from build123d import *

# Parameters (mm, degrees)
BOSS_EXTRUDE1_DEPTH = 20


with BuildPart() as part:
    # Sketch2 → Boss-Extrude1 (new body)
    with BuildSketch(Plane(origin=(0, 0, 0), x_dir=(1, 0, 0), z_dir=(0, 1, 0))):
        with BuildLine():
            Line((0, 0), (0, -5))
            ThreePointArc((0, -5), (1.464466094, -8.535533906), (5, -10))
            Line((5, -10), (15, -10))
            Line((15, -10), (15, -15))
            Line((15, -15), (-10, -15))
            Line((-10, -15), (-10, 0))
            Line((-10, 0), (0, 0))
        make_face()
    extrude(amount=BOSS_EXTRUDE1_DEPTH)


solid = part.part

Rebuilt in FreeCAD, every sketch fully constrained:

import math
import FreeCAD as App
import Part
import Sketcher

V = App.Vector

doc = App.newDocument("Part")
body = doc.addObject("PartDesign::Body", "Body")

# Sketch on XZ plane
sketch1 = body.newObject("Sketcher::SketchObject", "Sketch")
sketch1.AttachmentSupport = (doc.getObject("XZ_Plane"), [""])
sketch1.MapMode = "FlatFace"
sketch1.addGeometry([
    Part.LineSegment(V(0, 5, 0), V(0, 0, 0)),  # 0
    Part.LineSegment(V(0, 0, 0), V(-10, 0, 0)),  # 1
    Part.LineSegment(V(-10, 0, 0), V(-10, 15, 0)),  # 2
    Part.LineSegment(V(-10, 15, 0), V(15, 15, 0)),  # 3
    Part.LineSegment(V(15, 15, 0), V(15, 10, 0)),  # 4
    Part.LineSegment(V(15, 10, 0), V(5, 10, 0)),  # 5
    Part.ArcOfCircle(Part.Circle(V(5, 5, 0), V(0, 0, 1), 5), math.radians(90), math.radians(180)),  # 6
], False)
sketch1.addConstraint([
    Sketcher.Constraint("Coincident", 0, 2, 1, 1),
    Sketcher.Constraint("Coincident", 1, 2, 2, 1),
    Sketcher.Constraint("Coincident", 2, 2, 3, 1),
    Sketcher.Constraint("Coincident", 3, 2, 4, 1),
    Sketcher.Constraint("Coincident", 4, 2, 5, 1),
    Sketcher.Constraint("Tangent", 5, 2, 6, 1),
    Sketcher.Constraint("Tangent", 6, 2, 0, 1),
    Sketcher.Constraint("Vertical", 0),
    Sketcher.Constraint("Horizontal", 1),
    Sketcher.Constraint("Vertical", 2),
    Sketcher.Constraint("Horizontal", 3),
    Sketcher.Constraint("Vertical", 4),
    Sketcher.Constraint("Horizontal", 5),
    Sketcher.Constraint("Coincident", 0, 2, -1, 1),
    Sketcher.Constraint("Equal", 1, 5),
    Sketcher.Constraint("Equal", 0, 4),
    Sketcher.Constraint("Radius", 6, 5.0),
    Sketcher.Constraint("DistanceX", 1, 2, 1, 1, 10.0),
    Sketcher.Constraint("DistanceY", 0, 2, 0, 1, 5.0),
])
pad1 = body.newObject("PartDesign::Pad", "Pad")
pad1.Profile = sketch1
pad1.Length = 20
pad1.Reversed = True

doc.recompute()
